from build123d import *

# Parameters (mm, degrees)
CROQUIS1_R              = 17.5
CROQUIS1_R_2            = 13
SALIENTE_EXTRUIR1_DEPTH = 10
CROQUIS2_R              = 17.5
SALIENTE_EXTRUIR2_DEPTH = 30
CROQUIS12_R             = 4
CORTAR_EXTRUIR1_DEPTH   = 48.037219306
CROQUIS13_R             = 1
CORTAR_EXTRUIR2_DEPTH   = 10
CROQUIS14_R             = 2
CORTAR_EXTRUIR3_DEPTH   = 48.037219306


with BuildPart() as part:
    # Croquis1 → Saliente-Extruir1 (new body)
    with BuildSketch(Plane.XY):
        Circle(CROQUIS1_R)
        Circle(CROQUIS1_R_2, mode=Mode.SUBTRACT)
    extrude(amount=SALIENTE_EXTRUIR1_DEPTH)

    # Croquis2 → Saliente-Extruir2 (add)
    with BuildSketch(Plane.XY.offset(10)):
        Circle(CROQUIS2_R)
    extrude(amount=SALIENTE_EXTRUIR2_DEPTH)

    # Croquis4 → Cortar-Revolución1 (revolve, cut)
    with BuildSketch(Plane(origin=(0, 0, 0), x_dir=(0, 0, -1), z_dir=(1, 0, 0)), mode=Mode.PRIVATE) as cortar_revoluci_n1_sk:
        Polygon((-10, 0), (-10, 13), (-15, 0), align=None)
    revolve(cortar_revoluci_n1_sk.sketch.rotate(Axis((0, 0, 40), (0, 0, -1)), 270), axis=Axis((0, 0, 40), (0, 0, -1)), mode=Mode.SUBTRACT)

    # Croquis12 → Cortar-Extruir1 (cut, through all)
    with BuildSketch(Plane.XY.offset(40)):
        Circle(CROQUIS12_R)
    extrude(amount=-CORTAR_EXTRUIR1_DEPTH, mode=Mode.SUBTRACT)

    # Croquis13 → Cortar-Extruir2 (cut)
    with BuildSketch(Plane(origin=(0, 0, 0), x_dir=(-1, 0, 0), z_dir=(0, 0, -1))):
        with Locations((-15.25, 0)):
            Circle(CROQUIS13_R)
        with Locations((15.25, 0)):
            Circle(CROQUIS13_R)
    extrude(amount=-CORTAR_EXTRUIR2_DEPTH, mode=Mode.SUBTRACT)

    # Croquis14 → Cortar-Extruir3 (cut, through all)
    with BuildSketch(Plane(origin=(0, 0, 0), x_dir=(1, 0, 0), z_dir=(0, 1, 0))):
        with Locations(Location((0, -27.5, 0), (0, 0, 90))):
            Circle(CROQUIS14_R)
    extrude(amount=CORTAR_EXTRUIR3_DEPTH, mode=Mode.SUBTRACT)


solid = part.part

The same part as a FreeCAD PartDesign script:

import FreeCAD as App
import Part
import Sketcher
Q = App.Units.Quantity


def add_polygon(sketch, points):
    """Adds a closed chain of lines whose ends are joined by coincident constraints."""
    first, n = sketch.GeometryCount, len(points)
    for a, b in zip(points, points[1:] + points[:1]):
        sketch.addGeometry(Part.LineSegment(App.Vector(*a, 0), App.Vector(*b, 0)), False)
    for i in range(n):
        sketch.addConstraint(Sketcher.Constraint("Coincident", first + i, 2, first + (i + 1) % n, 1))

doc = App.newDocument("Part")
body = doc.addObject("PartDesign::Body", "Body")

# Sketch on XY plane
sketch1 = body.newObject("Sketcher::SketchObject", "Sketch")
sketch1.AttachmentSupport = (doc.getObject("XY_Plane"), [""])
sketch1.MapMode = "FlatFace"
sketch1.addGeometry(Part.Circle(App.Vector(0, 0, 0), App.Vector(0, 0, 1), 17.5), False)
sketch1.addGeometry(Part.Circle(App.Vector(0, 0, 0), App.Vector(0, 0, 1), 13), False)
sketch1.addConstraint(Sketcher.Constraint("Coincident", 0, 3, -1, 1))
sketch1.addConstraint(Sketcher.Constraint("Coincident", 1, 3, -1, 1))
sketch1.addConstraint(Sketcher.Constraint("Diameter", 0, Q("35 mm")))
sketch1.addConstraint(Sketcher.Constraint("Diameter", 1, Q("26 mm")))
pad1 = body.newObject("PartDesign::Pad", "Pad")
pad1.Profile = sketch1
pad1.Length = 10

# Sketch on XY plane
sketch2 = body.newObject("Sketcher::SketchObject", "Sketch001")
sketch2.AttachmentSupport = (doc.getObject("XY_Plane"), [""])
sketch2.MapMode = "FlatFace"
sketch2.AttachmentOffset = App.Placement(App.Vector(0, 0, 10), App.Rotation())
sketch2.addGeometry(Part.Circle(App.Vector(0, 0, 0), App.Vector(0, 0, 1), 17.5), False)
sketch2.addConstraint(Sketcher.Constraint("Coincident", 0, 3, -1, 1))
sketch2.addConstraint(Sketcher.Constraint("Diameter", 0, Q("35 mm")))
pad2 = body.newObject("PartDesign::Pad", "Pad001")
pad2.Profile = sketch2
pad2.Length = 30

# Sketch on YZ plane
sketch3 = body.newObject("Sketcher::SketchObject", "Sketch002")
sketch3.AttachmentSupport = (doc.getObject("YZ_Plane"), [""])
sketch3.MapMode = "FlatFace"
add_polygon(sketch3, [(0, 10), (13, 10), (0, 15)])  # lines 0-2
sketch3.addConstraint(Sketcher.Constraint("Horizontal", 0))
sketch3.addConstraint(Sketcher.Constraint("Vertical", 2))
sketch3.addConstraint(Sketcher.Constraint("PointOnObject", 1, 2, -2))
sketch3.addConstraint(Sketcher.Constraint("DistanceX", 0, 1, 0, 2, Q("13 mm")))
sketch3.addConstraint(Sketcher.Constraint("DistanceY", 2, 2, 2, 1, Q("5 mm")))
sketch3.addConstraint(Sketcher.Constraint("DistanceY", -1, 1, 0, 2, Q("10 mm")))
groove = body.newObject("PartDesign::Groove", "Groove")
groove.Profile = sketch3
groove.ReferenceAxis = (sketch3, ["V_Axis"])
groove.Angle = 360

# Sketch on XY plane
sketch4 = body.newObject("Sketcher::SketchObject", "Sketch003")
sketch4.AttachmentSupport = (doc.getObject("XY_Plane"), [""])
sketch4.MapMode = "FlatFace"
sketch4.AttachmentOffset = App.Placement(App.Vector(0, 0, 40), App.Rotation())
sketch4.addGeometry(Part.Circle(App.Vector(0, 0, 0), App.Vector(0, 0, 1), 4), False)
sketch4.addConstraint(Sketcher.Constraint("Coincident", 0, 3, -1, 1))
sketch4.addConstraint(Sketcher.Constraint("Diameter", 0, Q("8 mm")))
pocket1 = body.newObject("PartDesign::Pocket", "Pocket")
pocket1.Profile = sketch4
pocket1.Type = "ThroughAll"

# Sketch on XY plane
sketch5 = body.newObject("Sketcher::SketchObject", "Sketch004")
sketch5.AttachmentSupport = (doc.getObject("XY_Plane"), [""])
sketch5.MapMode = "FlatFace"
sketch5.addGeometry(Part.Circle(App.Vector(15.25, 0, 0), App.Vector(0, 0, 1), 1), False)
sketch5.addGeometry(Part.Circle(App.Vector(-15.25, 0, 0), App.Vector(0, 0, 1), 1), False)
sketch5.addConstraint(Sketcher.Constraint("Equal", 0, 1))
sketch5.addConstraint(Sketcher.Constraint("Symmetric", 0, 3, 1, 3, -1, 1))
sketch5.addConstraint(Sketcher.Constraint("PointOnObject", 0, 3, -1))
sketch5.addConstraint(Sketcher.Constraint("Diameter", 0, Q("2 mm")))
sketch5.addConstraint(Sketcher.Constraint("DistanceX", 1, 3, 0, 3, Q("30.5 mm")))
pocket2 = body.newObject("PartDesign::Pocket", "Pocket001")
pocket2.Profile = sketch5
pocket2.Length = 10
pocket2.Reversed = True

# Sketch on XZ plane
sketch6 = body.newObject("Sketcher::SketchObject", "Sketch005")
sketch6.AttachmentSupport = (doc.getObject("XZ_Plane"), [""])
sketch6.MapMode = "FlatFace"
sketch6.addGeometry(Part.Circle(App.Vector(0, 27.5, 0), App.Vector(0, 0, 1), 2), False)
sketch6.addConstraint(Sketcher.Constraint("PointOnObject", 0, 3, -2))
sketch6.addConstraint(Sketcher.Constraint("Diameter", 0, Q("4 mm")))
sketch6.addConstraint(Sketcher.Constraint("DistanceY", -1, 1, 0, 3, Q("27.5 mm")))
pocket3 = body.newObject("PartDesign::Pocket", "Pocket002")
pocket3.Profile = sketch6
pocket3.Type = "ThroughAll"

doc.recompute()
